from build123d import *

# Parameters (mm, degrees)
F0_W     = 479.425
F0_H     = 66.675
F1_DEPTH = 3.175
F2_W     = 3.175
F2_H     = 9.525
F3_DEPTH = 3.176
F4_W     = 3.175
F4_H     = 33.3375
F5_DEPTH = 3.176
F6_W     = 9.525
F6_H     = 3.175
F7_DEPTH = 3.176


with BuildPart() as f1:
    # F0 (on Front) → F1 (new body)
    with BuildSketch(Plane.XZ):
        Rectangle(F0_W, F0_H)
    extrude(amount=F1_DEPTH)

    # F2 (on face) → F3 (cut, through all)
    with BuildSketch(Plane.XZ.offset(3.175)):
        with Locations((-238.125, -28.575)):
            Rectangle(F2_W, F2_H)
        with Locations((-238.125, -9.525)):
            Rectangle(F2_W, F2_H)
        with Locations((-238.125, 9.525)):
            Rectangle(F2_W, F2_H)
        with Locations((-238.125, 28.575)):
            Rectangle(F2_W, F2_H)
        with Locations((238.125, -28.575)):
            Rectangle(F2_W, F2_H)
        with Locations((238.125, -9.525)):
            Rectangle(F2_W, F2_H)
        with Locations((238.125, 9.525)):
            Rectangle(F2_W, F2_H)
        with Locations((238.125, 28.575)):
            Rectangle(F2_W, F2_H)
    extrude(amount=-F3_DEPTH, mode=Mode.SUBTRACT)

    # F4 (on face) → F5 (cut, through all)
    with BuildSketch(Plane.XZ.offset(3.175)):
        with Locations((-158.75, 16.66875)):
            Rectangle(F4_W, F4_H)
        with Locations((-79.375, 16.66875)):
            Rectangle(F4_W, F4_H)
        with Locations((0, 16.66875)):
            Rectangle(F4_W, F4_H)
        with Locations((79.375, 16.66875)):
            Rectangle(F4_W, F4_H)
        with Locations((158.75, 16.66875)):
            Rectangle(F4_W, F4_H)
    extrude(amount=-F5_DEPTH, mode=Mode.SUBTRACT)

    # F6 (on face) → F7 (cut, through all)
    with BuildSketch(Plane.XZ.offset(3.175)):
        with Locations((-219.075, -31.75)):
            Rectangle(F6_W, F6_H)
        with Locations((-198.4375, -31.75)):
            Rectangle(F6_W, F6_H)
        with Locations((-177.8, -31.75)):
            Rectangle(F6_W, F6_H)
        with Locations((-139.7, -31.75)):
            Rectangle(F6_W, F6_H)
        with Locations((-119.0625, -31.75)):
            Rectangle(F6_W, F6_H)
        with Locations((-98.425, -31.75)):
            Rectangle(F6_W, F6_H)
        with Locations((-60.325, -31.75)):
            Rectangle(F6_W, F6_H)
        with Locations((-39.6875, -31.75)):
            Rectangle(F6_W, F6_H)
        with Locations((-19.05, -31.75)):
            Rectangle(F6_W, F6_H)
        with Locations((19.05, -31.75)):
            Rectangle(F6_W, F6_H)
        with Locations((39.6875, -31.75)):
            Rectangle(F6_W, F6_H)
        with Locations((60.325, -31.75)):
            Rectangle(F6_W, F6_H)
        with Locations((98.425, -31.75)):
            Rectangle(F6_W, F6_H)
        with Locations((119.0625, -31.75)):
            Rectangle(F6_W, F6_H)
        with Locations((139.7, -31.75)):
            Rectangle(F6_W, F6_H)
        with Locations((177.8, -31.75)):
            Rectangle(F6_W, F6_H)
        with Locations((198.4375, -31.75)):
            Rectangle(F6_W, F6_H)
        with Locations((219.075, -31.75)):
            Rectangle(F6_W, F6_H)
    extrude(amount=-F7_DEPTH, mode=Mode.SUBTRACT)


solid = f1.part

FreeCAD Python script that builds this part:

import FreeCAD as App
import Part
import Sketcher
from FreeCAD import Vector
Q = App.Units.Quantity


def add_polygon(sketch, points):
    """Adds a closed chain of lines whose ends are joined by coincident constraints."""
    first, n = sketch.GeometryCount, len(points)
    for a, b in zip(points, points[1:] + points[:1]):
        sketch.addGeometry(Part.LineSegment(App.Vector(*a, 0), App.Vector(*b, 0)), False)
    for i in range(n):
        sketch.addConstraint(Sketcher.Constraint("Coincident", first + i, 2, first + (i + 1) % n, 1))

doc = App.newDocument("Part")
body = doc.addObject("PartDesign::Body", "Body")

# Sketch on XZ plane
sketch1 = body.newObject("Sketcher::SketchObject", "Sketch")
sketch1.AttachmentSupport = (doc.getObject("XZ_Plane"), [""])
sketch1.MapMode = "FlatFace"
add_polygon(sketch1, [(-239.7125, 33.3375), (-239.7125, -33.3375), (239.7125, -33.3375), (239.7125, 33.3375)])  # lines 0-3
sketch1.addConstraint([
    Sketcher.Constraint("Vertical", 0),
    Sketcher.Constraint("Horizontal", 1),
    Sketcher.Constraint("Vertical", 2),
    Sketcher.Constraint("Horizontal", 3),
    Sketcher.Constraint("Symmetric", 0, 2, 2, 2, -1, 1),
    Sketcher.Constraint("DistanceX", 1, 1, 1, 2, Q("18.875 in")),
    Sketcher.Constraint("DistanceY", 0, 2, 0, 1, Q("2.625 in")),
])
pad1 = body.newObject("PartDesign::Pad", "Pad")
pad1.Profile = sketch1
pad1.Length = Q("0.125 in")

# Sketch on XZ plane
sketch2 = body.newObject("Sketcher::SketchObject", "Sketch001")
sketch2.AttachmentSupport = (doc.getObject("XZ_Plane"), [""])
sketch2.MapMode = "FlatFace"
sketch2.AttachmentOffset = App.Placement(Vector(0, 0, 0.125 * 25.4), App.Rotation())
add_polygon(sketch2, [(-239.7125, -23.8125), (-239.7125, -33.3375), (-236.5375, -33.3375), (-236.5375, -23.8125)])  # lines 0-3
add_polygon(sketch2, [(-239.7125, -4.7625), (-239.7125, -14.2875), (-236.5375, -14.2875), (-236.5375, -4.7625)])  # lines 4-7
add_polygon(sketch2, [(-239.7125, 14.2875), (-239.7125, 4.7625), (-236.5375, 4.7625), (-236.5375, 14.2875)])  # lines 8-11
add_polygon(sketch2, [(-239.7125, 33.3375), (-239.7125, 23.8125), (-236.5375, 23.8125), (-236.5375, 33.3375)])  # lines 12-15
add_polygon(sketch2, [(236.5375, -23.8125), (236.5375, -33.3375), (239.7125, -33.3375), (239.7125, -23.8125)])  # lines 16-19
add_polygon(sketch2, [(236.5375, -4.7625), (236.5375, -14.2875), (239.7125, -14.2875), (239.7125, -4.7625)])  # lines 20-23
add_polygon(sketch2, [(236.5375, 14.2875), (236.5375, 4.7625), (239.7125, 4.7625), (239.7125, 14.2875)])  # lines 24-27
add_polygon(sketch2, [(236.5375, 33.3375), (236.5375, 23.8125), (239.7125, 23.8125), (239.7125, 33.3375)])  # lines 28-31
sketch2.addConstraint([
    Sketcher.Constraint("Vertical", 0),
    Sketcher.Constraint("Horizontal", 1),
    Sketcher.Constraint("Vertical", 2),
    Sketcher.Constraint("Horizontal", 3),
    Sketcher.Constraint("Vertical", 4),
    Sketcher.Constraint("Horizontal", 5),
    Sketcher.Constraint("Vertical", 6),
    Sketcher.Constraint("Horizontal", 7),
    Sketcher.Constraint("Vertical", 8),
    Sketcher.Constraint("Horizontal", 9),
    Sketcher.Constraint("Vertical", 10),
    Sketcher.Constraint("Horizontal", 11),
    Sketcher.Constraint("Vertical", 12),
    Sketcher.Constraint("Horizontal", 13),
    Sketcher.Constraint("Vertical", 14),
    Sketcher.Constraint("Horizontal", 15),
    Sketcher.Constraint("Vertical", 16),
    Sketcher.Constraint("Horizontal", 17),
    Sketcher.Constraint("Vertical", 18),
    Sketcher.Constraint("Horizontal", 19),
    Sketcher.Constraint("Vertical", 20),
    Sketcher.Constraint("Horizontal", 21),
    Sketcher.Constraint("Vertical", 22),
    Sketcher.Constraint("Horizontal", 23),
    Sketcher.Constraint("Vertical", 24),
    Sketcher.Constraint("Horizontal", 25),
    Sketcher.Constraint("Vertical", 26),
    Sketcher.Constraint("Horizontal", 27),
    Sketcher.Constraint("Vertical", 28),
    Sketcher.Constraint("Horizontal", 29),
    Sketcher.Constraint("Vertical", 30),
    Sketcher.Constraint("Horizontal", 31),
    Sketcher.Constraint("Symmetric", 14, 2, 16, 2, -1, 1),
    Sketcher.Constraint("Symmetric", 12, 2, 18, 2, -1, 1),
    Sketcher.Constraint("Symmetric", 10, 2, 20, 2, -1, 1),
    Sketcher.Constraint("Symmetric", 8, 2, 22, 2, -1, 1),
    Sketcher.Constraint("Symmetric", 6, 2, 24, 2, -1, 1),
    Sketcher.Constraint("Symmetric", 4, 2, 26, 2, -1, 1),
    Sketcher.Constraint("Symmetric", 2, 2, 28, 2, -1, 1),
    Sketcher.Constraint("Symmetric", 0, 2, 30, 2, -1, 1),
    Sketcher.Constraint("Symmetric", 1, 2, 16, 2, -2),
    Sketcher.Constraint("Symmetric", 3, 2, 18, 2, -2),
    Sketcher.Constraint("Symmetric", 5, 2, 20, 2, -2),
    Sketcher.Constraint("Symmetric", 7, 2, 22, 2, -2),
    Sketcher.Constraint("Vertical", 3, 2, 4, 2),
    Sketcher.Constraint("Vertical", 2, 2, 5, 2),
    Sketcher.Constraint("Equal", 2, 4),
    Sketcher.Constraint("DistanceY", 16, 2, 9, 2, Q("1.5 in")),
    Sketcher.Constraint("DistanceX", 1, 1, 1, 2, Q("0.125 in")),
    Sketcher.Constraint("DistanceY", 0, 2, 0, 1, Q("0.375 in")),
    Sketcher.Constraint("DistanceY", 0, 2, 4, 2, Q("0.75 in")),
    Sketcher.Constraint("DistanceX", 1, 2, 17, 2, Q("18.75 in")),
])
pocket1 = body.newObject("PartDesign::Pocket", "Pocket")
pocket1.Profile = sketch2
pocket1.Type = "ThroughAll"

# Sketch on XZ plane
sketch3 = body.newObject("Sketcher::SketchObject", "Sketch002")
sketch3.AttachmentSupport = (doc.getObject("XZ_Plane"), [""])
sketch3.MapMode = "FlatFace"
sketch3.AttachmentOffset = App.Placement(Vector(0, 0, 0.125 * 25.4), App.Rotation())
add_polygon(sketch3, [(-160.3375, 33.3375), (-160.3375, 0), (-157.1625, 0), (-157.1625, 33.3375)])  # lines 0-3
add_polygon(sketch3, [(-80.9625, 33.3375), (-80.9625, 0), (-77.7875, 0), (-77.7875, 33.3375)])  # lines 4-7
add_polygon(sketch3, [(-1.5875, 33.3375), (-1.5875, 0), (1.5875, 0), (1.5875, 33.3375)])  # lines 8-11
add_polygon(sketch3, [(77.7875, 33.3375), (77.7875, 0), (80.9625, 0), (80.9625, 33.3375)])  # lines 12-15
add_polygon(sketch3, [(157.1625, 33.3375), (157.1625, 0), (160.3375, 0), (160.3375, 33.3375)])  # lines 16-19
sketch3.addConstraint([
    Sketcher.Constraint("Vertical", 0),
    Sketcher.Constraint("Horizontal", 1),
    Sketcher.Constraint("Vertical", 2),
    Sketcher.Constraint("Horizontal", 3),
    Sketcher.Constraint("Vertical", 4),
    Sketcher.Constraint("Horizontal", 5),
    Sketcher.Constraint("Vertical", 6),
    Sketcher.Constraint("Horizontal", 7),
    Sketcher.Constraint("Vertical", 8),
    Sketcher.Constraint("Horizontal", 9),
    Sketcher.Constraint("Vertical", 10),
    Sketcher.Constraint("Horizontal", 11),
    Sketcher.Constraint("Vertical", 12),
    Sketcher.Constraint("Horizontal", 13),
    Sketcher.Constraint("Vertical", 14),
    Sketcher.Constraint("Horizontal", 15),
    Sketcher.Constraint("Vertical", 16),
    Sketcher.Constraint("Horizontal", 17),
    Sketcher.Constraint("Vertical", 18),
    Sketcher.Constraint("Horizontal", 19),
    Sketcher.Constraint("Symmetric", 8, 2, 9, 2, -1, 1),
    Sketcher.Constraint("Symmetric", 5, 2, 12, 2, -1, 1),
    Sketcher.Constraint("Symmetric", 1, 2, 16, 2, -1, 1),
    Sketcher.Constraint("Symmetric", 4, 2, 13, 2, -2),
    Sketcher.Constraint("Symmetric", 0, 2, 17, 2, -2),
    Sketcher.Constraint("Horizontal", 3, 2, 6, 2),
    Sketcher.Constraint("Horizontal", 7, 2, 10, 2),
    Sketcher.Constraint("Horizontal", 11, 2, 14, 2),
    Sketcher.Constraint("Horizontal", 15, 2, 18, 2),
    Sketcher.Constraint("Equal", 3, 5),
    Sketcher.Constraint("Equal", 7, 9),
    Sketcher.Constraint("DistanceX", 1, 2, 4, 2, Q("3 in")),
    Sketcher.Constraint("DistanceX", 5, 2, 8, 2, Q("3 in")),
    Sketcher.Constraint("DistanceX", 1, 1, 1, 2, Q("0.125 in")),
    Sketcher.Constraint("DistanceY", 0, 2, 0, 1, Q("1.3125 in")),
])
pocket2 = body.newObject("PartDesign::Pocket", "Pocket001")
pocket2.Profile = sketch3
pocket2.Type = "ThroughAll"

# Sketch on XZ plane
sketch4 = body.newObject("Sketcher::SketchObject", "Sketch003")
sketch4.AttachmentSupport = (doc.getObject("XZ_Plane"), [""])
sketch4.MapMode = "FlatFace"
sketch4.AttachmentOffset = App.Placement(Vector(0, 0, 0.125 * 25.4), App.Rotation())
add_polygon(sketch4, [(-223.8375, -30.1625), (-223.8375, -33.3375), (-214.3125, -33.3375), (-214.3125, -30.1625)])  # lines 0-3
add_polygon(sketch4, [(-203.2, -30.1625), (-203.2, -33.3375), (-193.675, -33.3375), (-193.675, -30.1625)])  # lines 4-7
add_polygon(sketch4, [(-182.5625, -30.1625), (-182.5625, -33.3375), (-173.0375, -33.3375), (-173.0375, -30.1625)])  # lines 8-11
add_polygon(sketch4, [(-144.4625, -30.1625), (-144.4625, -33.3375), (-134.9375, -33.3375), (-134.9375, -30.1625)])  # lines 12-15
add_polygon(sketch4, [(-123.825, -30.1625), (-123.825, -33.3375), (-114.3, -33.3375), (-114.3, -30.1625)])  # lines 16-19
add_polygon(sketch4, [(-103.1875, -30.1625), (-103.1875, -33.3375), (-93.6625, -33.3375), (-93.6625, -30.1625)])  # lines 20-23
add_polygon(sketch4, [(-65.0875, -30.1625), (-65.0875, -33.3375), (-55.5625, -33.3375), (-55.5625, -30.1625)])  # lines 24-27
add_polygon(sketch4, [(-44.45, -30.1625), (-44.45, -33.3375), (-34.925, -33.3375), (-34.925, -30.1625)])  # lines 28-31
add_polygon(sketch4, [(-23.8125, -30.1625), (-23.8125, -33.3375), (-14.2875, -33.3375), (-14.2875, -30.1625)])  # lines 32-35
add_polygon(sketch4, [(14.2875, -30.1625), (14.2875, -33.3375), (23.8125, -33.3375), (23.8125, -30.1625)])  # lines 36-39
add_polygon(sketch4, [(34.925, -30.1625), (34.925, -33.3375), (44.45, -33.3375), (44.45, -30.1625)])  # lines 40-43
add_polygon(sketch4, [(55.5625, -30.1625), (55.5625, -33.3375), (65.0875, -33.3375), (65.0875, -30.1625)])  # lines 44-47
add_polygon(sketch4, [(93.6625, -30.1625), (93.6625, -33.3375), (103.1875, -33.3375), (103.1875, -30.1625)])  # lines 48-51
add_polygon(sketch4, [(114.3, -30.1625), (114.3, -33.3375), (123.825, -33.3375), (123.825, -30.1625)])  # lines 52-55
add_polygon(sketch4, [(134.9375, -30.1625), (134.9375, -33.3375), (144.4625, -33.3375), (144.4625, -30.1625)])  # lines 56-59
add_polygon(sketch4, [(173.0375, -30.1625), (173.0375, -33.3375), (182.5625, -33.3375), (182.5625, -30.1625)])  # lines 60-63
add_polygon(sketch4, [(193.675, -30.1625), (193.675, -33.3375), (203.2, -33.3375), (203.2, -30.1625)])  # lines 64-67
add_polygon(sketch4, [(214.3125, -30.1625), (214.3125, -33.3375), (223.8375, -33.3375), (223.8375, -30.1625)])  # lines 68-71
sketch4.addConstraint([
    Sketcher.Constraint("Vertical", 0),
    Sketcher.Constraint("Horizontal", 1),
    Sketcher.Constraint("Vertical", 2),
    Sketcher.Constraint("Horizontal", 3),
    Sketcher.Constraint("Vertical", 4),
    Sketcher.Constraint("Horizontal", 5),
    Sketcher.Constraint("Vertical", 6),
    Sketcher.Constraint("Horizontal", 7),
    Sketcher.Constraint("Vertical", 8),
    Sketcher.Constraint("Horizontal", 9),
    Sketcher.Constraint("Vertical", 10),
    Sketcher.Constraint("Horizontal", 11),
    Sketcher.Constraint("Vertical", 12),
    Sketcher.Constraint("Horizontal", 13),
    Sketcher.Constraint("Vertical", 14),
    Sketcher.Constraint("Horizontal", 15),
    Sketcher.Constraint("Vertical", 16),
    Sketcher.Constraint("Horizontal", 17),
    Sketcher.Constraint("Vertical", 18),
    Sketcher.Constraint("Horizontal", 19),
    Sketcher.Constraint("Vertical", 20),
    Sketcher.Constraint("Horizontal", 21),
    Sketcher.Constraint("Vertical", 22),
    Sketcher.Constraint("Horizontal", 23),
    Sketcher.Constraint("Vertical", 24),
    Sketcher.Constraint("Horizontal", 25),
    Sketcher.Constraint("Vertical", 26),
    Sketcher.Constraint("Horizontal", 27),
    Sketcher.Constraint("Vertical", 28),
    Sketcher.Constraint("Horizontal", 29),
    Sketcher.Constraint("Vertical", 30),
    Sketcher.Constraint("Horizontal", 31),
    Sketcher.Constraint("Vertical", 32),
    Sketcher.Constraint("Horizontal", 33),
    Sketcher.Constraint("Vertical", 34),
    Sketcher.Constraint("Horizontal", 35),
    Sketcher.Constraint("Vertical", 36),
    Sketcher.Constraint("Horizontal", 37),
    Sketcher.Constraint("Vertical", 38),
    Sketcher.Constraint("Horizontal", 39),
    Sketcher.Constraint("Vertical", 40),
    Sketcher.Constraint("Horizontal", 41),
    Sketcher.Constraint("Vertical", 42),
    Sketcher.Constraint("Horizontal", 43),
    Sketcher.Constraint("Vertical", 44),
    Sketcher.Constraint("Horizontal", 45),
    Sketcher.Constraint("Vertical", 46),
    Sketcher.Constraint("Horizontal", 47),
    Sketcher.Constraint("Vertical", 48),
    Sketcher.Constraint("Horizontal", 49),
    Sketcher.Constraint("Vertical", 50),
    Sketcher.Constraint("Horizontal", 51),
    Sketcher.Constraint("Vertical", 52),
    Sketcher.Constraint("Horizontal", 53),
    Sketcher.Constraint("Vertical", 54),
    Sketcher.Constraint("Horizontal", 55),
    Sketcher.Constraint("Vertical", 56),
    Sketcher.Constraint("Horizontal", 57),
    Sketcher.Constraint("Vertical", 58),
    Sketcher.Constraint("Horizontal", 59),
    Sketcher.Constraint("Vertical", 60),
    Sketcher.Constraint("Horizontal", 61),
    Sketcher.Constraint("Vertical", 62),
    Sketcher.Constraint("Horizontal", 63),
    Sketcher.Constraint("Vertical", 64),
    Sketcher.Constraint("Horizontal", 65),
    Sketcher.Constraint("Vertical", 66),
    Sketcher.Constraint("Horizontal", 67),
    Sketcher.Constraint("Vertical", 68),
    Sketcher.Constraint("Horizontal", 69),
    Sketcher.Constraint("Vertical", 70),
    Sketcher.Constraint("Horizontal", 71),
    Sketcher.Constraint("Symmetric", 33, 2, 36, 2, -2),
    Sketcher.Constraint("Symmetric", 35, 2, 38, 2, -2),
    Sketcher.Constraint("Symmetric", 29, 2, 40, 2, -2),
    Sketcher.Constraint("Symmetric", 31, 2, 42, 2, -2),
    Sketcher.Constraint("Symmetric", 25, 2, 44, 2, -2),
    Sketcher.Constraint("Symmetric", 27, 2, 46, 2, -2),
    Sketcher.Constraint("Symmetric", 21, 2, 48, 2, -2),
    Sketcher.Constraint("Symmetric", 23, 2, 50, 2, -2),
    Sketcher.Constraint("Symmetric", 17, 2, 52, 2, -2),
    Sketcher.Constraint("Symmetric", 19, 2, 54, 2, -2),
    Sketcher.Constraint("Symmetric", 13, 2, 56, 2, -2),
    Sketcher.Constraint("Symmetric", 15, 2, 58, 2, -2),
    Sketcher.Constraint("Symmetric", 9, 2, 60, 2, -2),
    Sketcher.Constraint("Symmetric", 11, 2, 62, 2, -2),
    Sketcher.Constraint("Symmetric", 5, 2, 64, 2, -2),
    Sketcher.Constraint("Symmetric", 7, 2, 66, 2, -2),
    Sketcher.Constraint("Symmetric", 1, 2, 68, 2, -2),
    Sketcher.Constraint("Symmetric", 3, 2, 70, 2, -2),
    Sketcher.Constraint("Horizontal", 1, 2, 4, 2),
    Sketcher.Constraint("Horizontal", 3, 2, 6, 2),
    Sketcher.Constraint("Horizontal", 5, 2, 8, 2),
    Sketcher.Constraint("Horizontal", 7, 2, 10, 2),
    Sketcher.Constraint("Horizontal", 9, 2, 12, 2),
    Sketcher.Constraint("Horizontal", 11, 2, 14, 2),
    Sketcher.Constraint("Horizontal", 13, 2, 16, 2),
    Sketcher.Constraint("Horizontal", 15, 2, 18, 2),
    Sketcher.Constraint("Horizontal", 17, 2, 20, 2),
    Sketcher.Constraint("Horizontal", 19, 2, 22, 2),
    Sketcher.Constraint("Horizontal", 21, 2, 24, 2),
    Sketcher.Constraint("Horizontal", 23, 2, 26, 2),
    Sketcher.Constraint("Horizontal", 25, 2, 28, 2),
    Sketcher.Constraint("Horizontal", 27, 2, 30, 2),
    Sketcher.Constraint("Horizontal", 29, 2, 32, 2),
    Sketcher.Constraint("Horizontal", 31, 2, 34, 2),
    Sketcher.Constraint("Equal", 3, 5),
    Sketcher.Constraint("Equal", 7, 9),
    Sketcher.Constraint("Equal", 11, 13),
    Sketcher.Constraint("Equal", 15, 17),
    Sketcher.Constraint("Equal", 19, 21),
    Sketcher.Constraint("Equal", 23, 25),
    Sketcher.Constraint("Equal", 27, 29),
    Sketcher.Constraint("Equal", 31, 33),
    Sketcher.Constraint("DistanceX", 4, 2, -1, 1, Q("8 in")),
    Sketcher.Constraint("DistanceX", 17, 2, -1, 1, Q("4.5 in")),
    Sketcher.Constraint("DistanceX", 1, 1, 1, 2, Q("0.375 in")),
    Sketcher.Constraint("DistanceY", 0, 2, 0, 1, Q("0.125 in")),
    Sketcher.Constraint("DistanceX", 28, 2, -1, 1, Q("1.75 in")),
    Sketcher.Constraint("DistanceX", 0, 2, -1, 1, Q("8.8125 in")),
    Sketcher.Constraint("DistanceY", 0, 2, -1, 1, Q("1.3125 in")),
    Sketcher.Constraint("DistanceX", 8, 2, -1, 1, Q("7.1875 in")),
    Sketcher.Constraint("DistanceX", 12, 2, -1, 1, Q("5.6875 in")),
    Sketcher.Constraint("DistanceX", 20, 2, -1, 1, Q("4.0625 in")),
    Sketcher.Constraint("DistanceX", 24, 2, -1, 1, Q("2.5625 in")),
    Sketcher.Constraint("DistanceX", 32, 2, -1, 1, Q("0.9375 in")),
])
pocket3 = body.newObject("PartDesign::Pocket", "Pocket002")
pocket3.Profile = sketch4
pocket3.Type = "ThroughAll"

doc.recompute()
